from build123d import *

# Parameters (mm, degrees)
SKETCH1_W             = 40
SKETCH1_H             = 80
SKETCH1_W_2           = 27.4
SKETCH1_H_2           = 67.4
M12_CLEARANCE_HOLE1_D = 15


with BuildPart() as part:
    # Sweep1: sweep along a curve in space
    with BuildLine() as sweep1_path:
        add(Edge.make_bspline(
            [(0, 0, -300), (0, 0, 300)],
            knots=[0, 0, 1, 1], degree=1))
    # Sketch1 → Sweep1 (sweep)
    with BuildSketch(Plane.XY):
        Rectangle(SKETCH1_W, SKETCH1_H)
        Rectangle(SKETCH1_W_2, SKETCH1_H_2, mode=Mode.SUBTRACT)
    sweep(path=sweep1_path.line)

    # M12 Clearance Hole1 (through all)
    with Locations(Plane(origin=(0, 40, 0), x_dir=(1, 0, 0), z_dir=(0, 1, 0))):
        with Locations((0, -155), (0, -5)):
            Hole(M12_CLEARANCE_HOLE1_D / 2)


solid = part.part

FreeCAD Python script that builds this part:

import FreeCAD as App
import Part
import Sketcher


def add_polygon(sketch, points):
    """Adds a closed chain of lines whose ends are joined by coincident constraints."""
    first, n = sketch.GeometryCount, len(points)
    for a, b in zip(points, points[1:] + points[:1]):
        sketch.addGeometry(Part.LineSegment(App.Vector(*a, 0), App.Vector(*b, 0)), False)
    for i in range(n):
        sketch.addConstraint(Sketcher.Constraint("Coincident", first + i, 2, first + (i + 1) % n, 1))

doc = App.newDocument("Part")
params = doc.addObject("Spreadsheet::Sheet", "Params")
for row, (alias, value) in enumerate([
    ("sketch1_width", "40 mm"),
    ("sketch1_height", "80 mm"),
    ("sketch1_width2", "27.4 mm"),
    ("sketch1_height2", "67.4 mm"),
    ("sketch3_diameter", "15 mm"),
    ("hole_diameter", "15 mm"),
], start=1):
    params.set(f"A{row}", alias)
    params.set(f"B{row}", "=" + value)
    params.setAlias(f"B{row}", alias)

body = doc.addObject("PartDesign::Body", "Body")

# Sketch on XY plane
sketch1 = body.newObject("Sketcher::SketchObject", "Sketch")
sketch1.AttachmentSupport = (doc.getObject("XY_Plane"), [""])
sketch1.MapMode = "FlatFace"
add_polygon(sketch1, [(-20, 40), (-20, -40), (20, -40), (20, 40)])  # lines 0-3
add_polygon(sketch1, [(13.7, -33.7), (-13.7, -33.7), (-13.7, 33.7), (13.7, 33.7)])  # lines 4-7
sketch1.addConstraint([
    Sketcher.Constraint("Vertical", 0),
    Sketcher.Constraint("Horizontal", 1),
    Sketcher.Constraint("Vertical", 2),
    Sketcher.Constraint("Horizontal", 3),
    Sketcher.Constraint("Horizontal", 4),
    Sketcher.Constraint("Vertical", 5),
    Sketcher.Constraint("Horizontal", 6),
    Sketcher.Constraint("Vertical", 7),
    Sketcher.Constraint("Symmetric", 0, 2, 2, 2, -1, 1),
    Sketcher.Constraint("Symmetric", 4, 2, 6, 2, -1, 1),
    Sketcher.Constraint("DistanceX", 1, 1, 1, 2, 40.0),
    Sketcher.Constraint("DistanceY", 0, 2, 0, 1, 80.0),
    Sketcher.Constraint("DistanceX", 4, 2, 4, 1, 27.4),
    Sketcher.Constraint("DistanceY", 5, 1, 5, 2, 67.4),
])
sketch1.setExpression("Constraints[18]", "Params.sketch1_width")
sketch1.setExpression("Constraints[19]", "Params.sketch1_height")
sketch1.setExpression("Constraints[20]", "Params.sketch1_width2")
sketch1.setExpression("Constraints[21]", "Params.sketch1_height2")

# Sketch on XZ plane
sketch2 = body.newObject("Sketcher::SketchObject", "Sketch001")
sketch2.AttachmentSupport = (doc.getObject("XZ_Plane"), [""])
sketch2.MapMode = "FlatFace"
sketch2.addGeometry(Part.BSplineCurve([App.Vector(0, -300, 0), App.Vector(0, 300, 0)], [2, 2], [0, 1], False, 1, [1, 1], False), False)
sketch2.addConstraint(Sketcher.Constraint("Block", 0))
doc.recompute()

additivepipe = body.newObject("PartDesign::AdditivePipe", "AdditivePipe")
additivepipe.Profile = sketch1
additivepipe.Spine = (sketch2, ["Edge1"])

# Sketch on XZ plane
sketch3 = body.newObject("Sketcher::SketchObject", "Sketch002")
sketch3.AttachmentSupport = (doc.getObject("XZ_Plane"), [""])
sketch3.MapMode = "FlatFace"
sketch3.AttachmentOffset = App.Placement(App.Vector(0, 0, -40), App.Rotation())
sketch3.addGeometry([
    Part.Circle(App.Vector(0, 155, 0), App.Vector(0, 0, 1), 7.5),
    Part.Circle(App.Vector(0, 5, 0), App.Vector(0, 0, 1), 7.5),
], False)
sketch3.addConstraint([
    Sketcher.Constraint("Equal", 0, 1),
    Sketcher.Constraint("PointOnObject", 0, 3, -2),
    Sketcher.Constraint("PointOnObject", 1, 3, -2),
    Sketcher.Constraint("Diameter", 0, 15.0),
    Sketcher.Constraint("DistanceY", -1, 1, 0, 3, 155.0),
    Sketcher.Constraint("DistanceY", -1, 1, 1, 3, 5.0),
])
sketch3.setExpression("Constraints[3]", "Params.sketch3_diameter")
doc.recompute()
hole = body.newObject("PartDesign::Hole", "Hole")
hole.Profile = sketch3
hole.ThreadType = "None"
hole.setExpression("Diameter", "Params.hole_diameter")
hole.DepthType = "ThroughAll"
hole.Reversed = True

doc.recompute()
